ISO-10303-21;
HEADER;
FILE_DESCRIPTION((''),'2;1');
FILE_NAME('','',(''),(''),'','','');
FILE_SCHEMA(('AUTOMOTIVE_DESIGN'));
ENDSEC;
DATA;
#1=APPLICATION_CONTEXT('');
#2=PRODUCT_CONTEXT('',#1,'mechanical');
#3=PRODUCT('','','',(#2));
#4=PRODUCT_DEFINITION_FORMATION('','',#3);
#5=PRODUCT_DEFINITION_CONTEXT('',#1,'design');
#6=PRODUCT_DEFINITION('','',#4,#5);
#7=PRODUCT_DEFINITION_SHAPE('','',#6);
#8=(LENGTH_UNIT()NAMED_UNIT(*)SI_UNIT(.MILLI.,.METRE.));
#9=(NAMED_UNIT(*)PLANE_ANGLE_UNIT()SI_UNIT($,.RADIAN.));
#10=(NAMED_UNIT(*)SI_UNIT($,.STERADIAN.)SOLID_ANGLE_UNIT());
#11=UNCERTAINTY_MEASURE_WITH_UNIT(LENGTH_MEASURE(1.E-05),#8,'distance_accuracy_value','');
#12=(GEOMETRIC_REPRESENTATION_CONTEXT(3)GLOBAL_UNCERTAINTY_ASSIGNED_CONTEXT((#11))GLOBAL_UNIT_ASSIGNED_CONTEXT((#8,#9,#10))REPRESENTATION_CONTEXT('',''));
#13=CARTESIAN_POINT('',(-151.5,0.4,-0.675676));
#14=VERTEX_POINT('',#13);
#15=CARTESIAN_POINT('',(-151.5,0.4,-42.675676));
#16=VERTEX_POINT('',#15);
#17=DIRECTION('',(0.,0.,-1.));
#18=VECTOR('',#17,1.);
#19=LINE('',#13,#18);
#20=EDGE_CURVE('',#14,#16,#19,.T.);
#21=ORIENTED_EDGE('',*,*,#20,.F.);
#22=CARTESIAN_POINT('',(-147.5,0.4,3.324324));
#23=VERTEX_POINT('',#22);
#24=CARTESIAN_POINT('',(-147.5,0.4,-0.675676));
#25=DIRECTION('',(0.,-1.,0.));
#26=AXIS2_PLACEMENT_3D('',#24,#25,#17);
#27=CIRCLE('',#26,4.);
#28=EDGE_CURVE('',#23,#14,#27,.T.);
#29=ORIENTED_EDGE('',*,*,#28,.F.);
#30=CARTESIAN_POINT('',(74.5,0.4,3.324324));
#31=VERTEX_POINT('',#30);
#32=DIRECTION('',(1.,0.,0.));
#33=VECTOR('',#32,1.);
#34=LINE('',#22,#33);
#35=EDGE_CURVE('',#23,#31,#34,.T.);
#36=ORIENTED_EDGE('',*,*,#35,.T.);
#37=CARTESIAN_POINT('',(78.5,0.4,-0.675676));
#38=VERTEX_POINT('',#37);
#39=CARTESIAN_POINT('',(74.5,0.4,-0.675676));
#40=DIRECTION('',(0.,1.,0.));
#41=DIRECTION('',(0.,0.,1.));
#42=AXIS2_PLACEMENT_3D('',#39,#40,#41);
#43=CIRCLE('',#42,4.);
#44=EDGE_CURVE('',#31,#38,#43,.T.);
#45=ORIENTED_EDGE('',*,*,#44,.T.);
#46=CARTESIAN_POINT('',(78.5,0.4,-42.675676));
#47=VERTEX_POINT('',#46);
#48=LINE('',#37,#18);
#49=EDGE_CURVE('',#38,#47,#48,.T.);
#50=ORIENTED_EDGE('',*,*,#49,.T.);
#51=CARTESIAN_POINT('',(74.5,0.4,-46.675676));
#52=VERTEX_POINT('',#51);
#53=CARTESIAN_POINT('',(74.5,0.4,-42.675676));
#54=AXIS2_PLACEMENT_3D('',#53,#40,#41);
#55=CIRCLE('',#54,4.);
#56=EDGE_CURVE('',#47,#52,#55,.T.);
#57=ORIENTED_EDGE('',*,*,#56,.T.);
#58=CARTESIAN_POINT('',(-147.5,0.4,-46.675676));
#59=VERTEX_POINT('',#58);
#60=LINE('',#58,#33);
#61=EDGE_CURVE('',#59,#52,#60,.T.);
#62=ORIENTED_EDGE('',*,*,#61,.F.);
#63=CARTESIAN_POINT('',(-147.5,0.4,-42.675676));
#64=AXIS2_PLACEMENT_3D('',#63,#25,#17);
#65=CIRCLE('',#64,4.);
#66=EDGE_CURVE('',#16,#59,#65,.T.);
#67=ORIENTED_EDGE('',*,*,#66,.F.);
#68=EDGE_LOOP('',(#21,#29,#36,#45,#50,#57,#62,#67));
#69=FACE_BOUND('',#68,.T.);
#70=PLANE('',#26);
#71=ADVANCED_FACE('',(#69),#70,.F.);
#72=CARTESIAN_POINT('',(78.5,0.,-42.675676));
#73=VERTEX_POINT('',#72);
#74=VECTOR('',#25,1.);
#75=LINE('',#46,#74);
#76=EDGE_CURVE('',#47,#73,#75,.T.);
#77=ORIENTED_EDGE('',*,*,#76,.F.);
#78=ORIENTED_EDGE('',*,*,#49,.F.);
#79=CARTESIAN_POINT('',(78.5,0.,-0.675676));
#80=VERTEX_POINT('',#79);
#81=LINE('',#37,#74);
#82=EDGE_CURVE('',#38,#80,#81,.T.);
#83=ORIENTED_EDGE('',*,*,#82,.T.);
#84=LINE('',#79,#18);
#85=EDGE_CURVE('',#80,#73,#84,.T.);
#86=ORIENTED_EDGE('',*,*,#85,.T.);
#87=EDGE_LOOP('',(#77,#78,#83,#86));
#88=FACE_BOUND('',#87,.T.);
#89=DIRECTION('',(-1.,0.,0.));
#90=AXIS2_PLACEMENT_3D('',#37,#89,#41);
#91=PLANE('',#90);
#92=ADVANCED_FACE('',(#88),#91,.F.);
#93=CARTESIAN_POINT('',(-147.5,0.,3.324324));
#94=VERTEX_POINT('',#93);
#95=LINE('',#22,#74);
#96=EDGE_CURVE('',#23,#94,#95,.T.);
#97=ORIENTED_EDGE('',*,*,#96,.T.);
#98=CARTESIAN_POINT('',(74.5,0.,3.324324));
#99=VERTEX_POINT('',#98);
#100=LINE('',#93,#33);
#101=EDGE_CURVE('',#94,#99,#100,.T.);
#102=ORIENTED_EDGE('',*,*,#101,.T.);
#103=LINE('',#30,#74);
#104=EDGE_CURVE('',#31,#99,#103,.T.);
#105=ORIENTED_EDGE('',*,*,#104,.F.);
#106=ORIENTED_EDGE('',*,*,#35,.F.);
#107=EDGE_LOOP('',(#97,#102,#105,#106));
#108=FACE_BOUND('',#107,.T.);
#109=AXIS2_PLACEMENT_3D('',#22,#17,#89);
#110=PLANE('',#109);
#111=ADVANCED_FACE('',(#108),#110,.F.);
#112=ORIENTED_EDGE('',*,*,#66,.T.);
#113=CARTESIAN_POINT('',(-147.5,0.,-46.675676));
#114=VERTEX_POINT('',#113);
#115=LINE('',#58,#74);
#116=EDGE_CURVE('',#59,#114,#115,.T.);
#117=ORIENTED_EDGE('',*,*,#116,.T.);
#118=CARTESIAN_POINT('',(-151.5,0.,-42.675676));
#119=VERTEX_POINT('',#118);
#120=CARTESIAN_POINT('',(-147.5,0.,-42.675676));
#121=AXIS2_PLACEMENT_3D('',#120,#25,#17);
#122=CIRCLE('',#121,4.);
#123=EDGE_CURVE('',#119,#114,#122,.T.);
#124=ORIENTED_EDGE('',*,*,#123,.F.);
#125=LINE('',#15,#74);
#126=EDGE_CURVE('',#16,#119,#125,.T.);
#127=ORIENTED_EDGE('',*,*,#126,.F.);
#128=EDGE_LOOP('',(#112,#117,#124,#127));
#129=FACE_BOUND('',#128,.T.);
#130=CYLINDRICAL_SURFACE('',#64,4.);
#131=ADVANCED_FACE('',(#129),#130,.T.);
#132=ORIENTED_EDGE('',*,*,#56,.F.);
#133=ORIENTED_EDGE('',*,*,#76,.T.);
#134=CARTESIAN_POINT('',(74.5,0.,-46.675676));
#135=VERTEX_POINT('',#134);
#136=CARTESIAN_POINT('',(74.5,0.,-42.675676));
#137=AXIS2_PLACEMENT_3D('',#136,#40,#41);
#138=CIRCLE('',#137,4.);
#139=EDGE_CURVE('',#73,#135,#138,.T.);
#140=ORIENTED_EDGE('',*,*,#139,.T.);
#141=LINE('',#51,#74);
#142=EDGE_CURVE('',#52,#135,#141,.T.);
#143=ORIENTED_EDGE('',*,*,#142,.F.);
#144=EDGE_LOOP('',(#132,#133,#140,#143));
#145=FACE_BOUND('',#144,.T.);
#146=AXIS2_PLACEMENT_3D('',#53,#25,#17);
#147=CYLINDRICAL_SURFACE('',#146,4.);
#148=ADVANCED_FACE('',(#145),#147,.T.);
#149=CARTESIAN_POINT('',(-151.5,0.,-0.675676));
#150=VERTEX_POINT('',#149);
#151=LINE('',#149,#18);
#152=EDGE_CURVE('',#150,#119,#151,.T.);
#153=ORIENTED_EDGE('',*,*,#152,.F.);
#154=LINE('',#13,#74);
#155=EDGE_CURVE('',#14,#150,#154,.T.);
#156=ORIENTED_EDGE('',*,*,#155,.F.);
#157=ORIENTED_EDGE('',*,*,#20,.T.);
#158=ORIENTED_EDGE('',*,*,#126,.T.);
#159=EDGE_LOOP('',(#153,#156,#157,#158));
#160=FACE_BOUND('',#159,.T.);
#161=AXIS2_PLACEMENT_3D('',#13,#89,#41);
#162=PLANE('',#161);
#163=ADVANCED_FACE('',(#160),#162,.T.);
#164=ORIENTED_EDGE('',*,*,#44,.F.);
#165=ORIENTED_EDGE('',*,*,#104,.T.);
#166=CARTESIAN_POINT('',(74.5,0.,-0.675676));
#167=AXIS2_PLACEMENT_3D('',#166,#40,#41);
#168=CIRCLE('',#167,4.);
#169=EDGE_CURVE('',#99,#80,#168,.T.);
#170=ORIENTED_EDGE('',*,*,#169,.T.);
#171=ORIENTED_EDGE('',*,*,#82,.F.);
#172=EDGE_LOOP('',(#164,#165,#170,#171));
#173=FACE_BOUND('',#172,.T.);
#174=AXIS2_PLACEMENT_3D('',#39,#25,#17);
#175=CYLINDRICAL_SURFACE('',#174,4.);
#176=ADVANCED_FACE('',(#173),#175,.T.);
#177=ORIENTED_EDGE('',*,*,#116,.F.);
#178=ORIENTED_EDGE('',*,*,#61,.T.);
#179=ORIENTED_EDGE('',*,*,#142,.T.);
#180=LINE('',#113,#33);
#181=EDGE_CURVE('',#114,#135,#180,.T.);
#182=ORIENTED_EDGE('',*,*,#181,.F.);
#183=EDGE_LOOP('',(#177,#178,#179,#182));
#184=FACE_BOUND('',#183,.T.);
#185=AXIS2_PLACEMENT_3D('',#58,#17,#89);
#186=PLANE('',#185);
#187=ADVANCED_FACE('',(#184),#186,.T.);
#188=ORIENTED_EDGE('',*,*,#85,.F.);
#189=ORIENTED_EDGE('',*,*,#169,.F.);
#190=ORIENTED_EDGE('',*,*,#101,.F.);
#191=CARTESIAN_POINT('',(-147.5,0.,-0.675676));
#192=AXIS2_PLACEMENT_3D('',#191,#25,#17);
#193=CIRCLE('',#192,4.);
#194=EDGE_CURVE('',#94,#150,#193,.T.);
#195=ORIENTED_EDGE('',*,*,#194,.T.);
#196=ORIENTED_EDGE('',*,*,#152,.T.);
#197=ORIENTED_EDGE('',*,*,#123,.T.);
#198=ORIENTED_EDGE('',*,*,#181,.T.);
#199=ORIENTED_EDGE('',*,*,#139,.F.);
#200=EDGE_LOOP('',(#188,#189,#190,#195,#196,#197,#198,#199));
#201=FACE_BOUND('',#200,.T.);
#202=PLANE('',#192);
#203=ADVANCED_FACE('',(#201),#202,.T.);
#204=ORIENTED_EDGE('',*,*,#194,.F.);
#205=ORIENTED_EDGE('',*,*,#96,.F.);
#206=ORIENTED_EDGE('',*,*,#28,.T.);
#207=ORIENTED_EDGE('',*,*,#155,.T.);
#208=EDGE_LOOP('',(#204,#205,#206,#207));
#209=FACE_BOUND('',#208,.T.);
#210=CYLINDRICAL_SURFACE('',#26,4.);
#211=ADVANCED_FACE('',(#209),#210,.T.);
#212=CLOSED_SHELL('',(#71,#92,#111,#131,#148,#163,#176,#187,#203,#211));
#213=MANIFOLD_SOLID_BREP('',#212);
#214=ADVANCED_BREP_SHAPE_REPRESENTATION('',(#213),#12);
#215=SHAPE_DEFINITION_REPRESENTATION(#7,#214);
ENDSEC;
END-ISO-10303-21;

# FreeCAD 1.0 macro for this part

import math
import FreeCAD as App
import Part
import Sketcher

V = App.Vector
Q = App.Units.Quantity

doc = App.newDocument("Part")
body = doc.addObject("PartDesign::Body", "Body")

# Sketch on XZ plane
sketch1 = body.newObject("Sketcher::SketchObject", "Sketch")
sketch1.AttachmentSupport = (doc.getObject("XZ_Plane"), [""])
sketch1.MapMode = "FlatFace"
sketch1.addGeometry([
    Part.LineSegment(V(-147.5, 3.324324, 0), V(74.5, 3.324324, 0)),  # 0
    Part.ArcOfCircle(Part.Circle(V(74.5, -0.675676, 0), V(0, 0, 1), 4), math.radians(0), math.radians(90)),  # 1
    Part.LineSegment(V(78.5, -0.675676, 0), V(78.5, -42.675676, 0)),  # 2
    Part.ArcOfCircle(Part.Circle(V(74.5, -42.675676, 0), V(0, 0, 1), 4), math.radians(-90), math.radians(0)),  # 3
    Part.LineSegment(V(74.5, -46.675676, 0), V(-147.5, -46.675676, 0)),  # 4
    Part.ArcOfCircle(Part.Circle(V(-147.5, -42.675676, 0), V(0, 0, 1), 4), math.radians(-180), math.radians(-90)),  # 5
    Part.LineSegment(V(-151.5, -42.675676, 0), V(-151.5, -0.675676, 0)),  # 6
    Part.ArcOfCircle(Part.Circle(V(-147.5, -0.675676, 0), V(0, 0, 1), 4), math.radians(90), math.radians(180)),  # 7
], False)
sketch1.addConstraint([
    Sketcher.Constraint("Tangent", 0, 2, 1, 2),
    Sketcher.Constraint("Tangent", 1, 1, 2, 1),
    Sketcher.Constraint("Tangent", 2, 2, 3, 2),
    Sketcher.Constraint("Tangent", 3, 1, 4, 1),
    Sketcher.Constraint("Tangent", 4, 2, 5, 2),
    Sketcher.Constraint("Tangent", 5, 1, 6, 1),
    Sketcher.Constraint("Tangent", 6, 2, 7, 2),
    Sketcher.Constraint("Tangent", 7, 1, 0, 1),
    Sketcher.Constraint("Horizontal", 0),
    Sketcher.Constraint("Vertical", 2),
    Sketcher.Constraint("Horizontal", 4),
    Sketcher.Constraint("Vertical", 6),
    Sketcher.Constraint("Equal", 1, 3),
    Sketcher.Constraint("Equal", 3, 5),
    Sketcher.Constraint("Equal", 5, 7),
    Sketcher.Constraint("Radius", 1, Q("4 mm")),
    Sketcher.Constraint("DistanceX", 0, 1, 0, 2, Q("222 mm")),
    Sketcher.Constraint("DistanceY", 2, 2, 2, 1, Q("42 mm")),
    Sketcher.Constraint("DistanceX", -1, 1, 1, 3, Q("74.5 mm")),
    Sketcher.Constraint("DistanceY", 1, 3, -1, 1, Q("0.675676 mm")),
])
pad1 = body.newObject("PartDesign::Pad", "Pad")
pad1.Profile = sketch1
pad1.Length = 0.4
pad1.Reversed = True

doc.recompute()
